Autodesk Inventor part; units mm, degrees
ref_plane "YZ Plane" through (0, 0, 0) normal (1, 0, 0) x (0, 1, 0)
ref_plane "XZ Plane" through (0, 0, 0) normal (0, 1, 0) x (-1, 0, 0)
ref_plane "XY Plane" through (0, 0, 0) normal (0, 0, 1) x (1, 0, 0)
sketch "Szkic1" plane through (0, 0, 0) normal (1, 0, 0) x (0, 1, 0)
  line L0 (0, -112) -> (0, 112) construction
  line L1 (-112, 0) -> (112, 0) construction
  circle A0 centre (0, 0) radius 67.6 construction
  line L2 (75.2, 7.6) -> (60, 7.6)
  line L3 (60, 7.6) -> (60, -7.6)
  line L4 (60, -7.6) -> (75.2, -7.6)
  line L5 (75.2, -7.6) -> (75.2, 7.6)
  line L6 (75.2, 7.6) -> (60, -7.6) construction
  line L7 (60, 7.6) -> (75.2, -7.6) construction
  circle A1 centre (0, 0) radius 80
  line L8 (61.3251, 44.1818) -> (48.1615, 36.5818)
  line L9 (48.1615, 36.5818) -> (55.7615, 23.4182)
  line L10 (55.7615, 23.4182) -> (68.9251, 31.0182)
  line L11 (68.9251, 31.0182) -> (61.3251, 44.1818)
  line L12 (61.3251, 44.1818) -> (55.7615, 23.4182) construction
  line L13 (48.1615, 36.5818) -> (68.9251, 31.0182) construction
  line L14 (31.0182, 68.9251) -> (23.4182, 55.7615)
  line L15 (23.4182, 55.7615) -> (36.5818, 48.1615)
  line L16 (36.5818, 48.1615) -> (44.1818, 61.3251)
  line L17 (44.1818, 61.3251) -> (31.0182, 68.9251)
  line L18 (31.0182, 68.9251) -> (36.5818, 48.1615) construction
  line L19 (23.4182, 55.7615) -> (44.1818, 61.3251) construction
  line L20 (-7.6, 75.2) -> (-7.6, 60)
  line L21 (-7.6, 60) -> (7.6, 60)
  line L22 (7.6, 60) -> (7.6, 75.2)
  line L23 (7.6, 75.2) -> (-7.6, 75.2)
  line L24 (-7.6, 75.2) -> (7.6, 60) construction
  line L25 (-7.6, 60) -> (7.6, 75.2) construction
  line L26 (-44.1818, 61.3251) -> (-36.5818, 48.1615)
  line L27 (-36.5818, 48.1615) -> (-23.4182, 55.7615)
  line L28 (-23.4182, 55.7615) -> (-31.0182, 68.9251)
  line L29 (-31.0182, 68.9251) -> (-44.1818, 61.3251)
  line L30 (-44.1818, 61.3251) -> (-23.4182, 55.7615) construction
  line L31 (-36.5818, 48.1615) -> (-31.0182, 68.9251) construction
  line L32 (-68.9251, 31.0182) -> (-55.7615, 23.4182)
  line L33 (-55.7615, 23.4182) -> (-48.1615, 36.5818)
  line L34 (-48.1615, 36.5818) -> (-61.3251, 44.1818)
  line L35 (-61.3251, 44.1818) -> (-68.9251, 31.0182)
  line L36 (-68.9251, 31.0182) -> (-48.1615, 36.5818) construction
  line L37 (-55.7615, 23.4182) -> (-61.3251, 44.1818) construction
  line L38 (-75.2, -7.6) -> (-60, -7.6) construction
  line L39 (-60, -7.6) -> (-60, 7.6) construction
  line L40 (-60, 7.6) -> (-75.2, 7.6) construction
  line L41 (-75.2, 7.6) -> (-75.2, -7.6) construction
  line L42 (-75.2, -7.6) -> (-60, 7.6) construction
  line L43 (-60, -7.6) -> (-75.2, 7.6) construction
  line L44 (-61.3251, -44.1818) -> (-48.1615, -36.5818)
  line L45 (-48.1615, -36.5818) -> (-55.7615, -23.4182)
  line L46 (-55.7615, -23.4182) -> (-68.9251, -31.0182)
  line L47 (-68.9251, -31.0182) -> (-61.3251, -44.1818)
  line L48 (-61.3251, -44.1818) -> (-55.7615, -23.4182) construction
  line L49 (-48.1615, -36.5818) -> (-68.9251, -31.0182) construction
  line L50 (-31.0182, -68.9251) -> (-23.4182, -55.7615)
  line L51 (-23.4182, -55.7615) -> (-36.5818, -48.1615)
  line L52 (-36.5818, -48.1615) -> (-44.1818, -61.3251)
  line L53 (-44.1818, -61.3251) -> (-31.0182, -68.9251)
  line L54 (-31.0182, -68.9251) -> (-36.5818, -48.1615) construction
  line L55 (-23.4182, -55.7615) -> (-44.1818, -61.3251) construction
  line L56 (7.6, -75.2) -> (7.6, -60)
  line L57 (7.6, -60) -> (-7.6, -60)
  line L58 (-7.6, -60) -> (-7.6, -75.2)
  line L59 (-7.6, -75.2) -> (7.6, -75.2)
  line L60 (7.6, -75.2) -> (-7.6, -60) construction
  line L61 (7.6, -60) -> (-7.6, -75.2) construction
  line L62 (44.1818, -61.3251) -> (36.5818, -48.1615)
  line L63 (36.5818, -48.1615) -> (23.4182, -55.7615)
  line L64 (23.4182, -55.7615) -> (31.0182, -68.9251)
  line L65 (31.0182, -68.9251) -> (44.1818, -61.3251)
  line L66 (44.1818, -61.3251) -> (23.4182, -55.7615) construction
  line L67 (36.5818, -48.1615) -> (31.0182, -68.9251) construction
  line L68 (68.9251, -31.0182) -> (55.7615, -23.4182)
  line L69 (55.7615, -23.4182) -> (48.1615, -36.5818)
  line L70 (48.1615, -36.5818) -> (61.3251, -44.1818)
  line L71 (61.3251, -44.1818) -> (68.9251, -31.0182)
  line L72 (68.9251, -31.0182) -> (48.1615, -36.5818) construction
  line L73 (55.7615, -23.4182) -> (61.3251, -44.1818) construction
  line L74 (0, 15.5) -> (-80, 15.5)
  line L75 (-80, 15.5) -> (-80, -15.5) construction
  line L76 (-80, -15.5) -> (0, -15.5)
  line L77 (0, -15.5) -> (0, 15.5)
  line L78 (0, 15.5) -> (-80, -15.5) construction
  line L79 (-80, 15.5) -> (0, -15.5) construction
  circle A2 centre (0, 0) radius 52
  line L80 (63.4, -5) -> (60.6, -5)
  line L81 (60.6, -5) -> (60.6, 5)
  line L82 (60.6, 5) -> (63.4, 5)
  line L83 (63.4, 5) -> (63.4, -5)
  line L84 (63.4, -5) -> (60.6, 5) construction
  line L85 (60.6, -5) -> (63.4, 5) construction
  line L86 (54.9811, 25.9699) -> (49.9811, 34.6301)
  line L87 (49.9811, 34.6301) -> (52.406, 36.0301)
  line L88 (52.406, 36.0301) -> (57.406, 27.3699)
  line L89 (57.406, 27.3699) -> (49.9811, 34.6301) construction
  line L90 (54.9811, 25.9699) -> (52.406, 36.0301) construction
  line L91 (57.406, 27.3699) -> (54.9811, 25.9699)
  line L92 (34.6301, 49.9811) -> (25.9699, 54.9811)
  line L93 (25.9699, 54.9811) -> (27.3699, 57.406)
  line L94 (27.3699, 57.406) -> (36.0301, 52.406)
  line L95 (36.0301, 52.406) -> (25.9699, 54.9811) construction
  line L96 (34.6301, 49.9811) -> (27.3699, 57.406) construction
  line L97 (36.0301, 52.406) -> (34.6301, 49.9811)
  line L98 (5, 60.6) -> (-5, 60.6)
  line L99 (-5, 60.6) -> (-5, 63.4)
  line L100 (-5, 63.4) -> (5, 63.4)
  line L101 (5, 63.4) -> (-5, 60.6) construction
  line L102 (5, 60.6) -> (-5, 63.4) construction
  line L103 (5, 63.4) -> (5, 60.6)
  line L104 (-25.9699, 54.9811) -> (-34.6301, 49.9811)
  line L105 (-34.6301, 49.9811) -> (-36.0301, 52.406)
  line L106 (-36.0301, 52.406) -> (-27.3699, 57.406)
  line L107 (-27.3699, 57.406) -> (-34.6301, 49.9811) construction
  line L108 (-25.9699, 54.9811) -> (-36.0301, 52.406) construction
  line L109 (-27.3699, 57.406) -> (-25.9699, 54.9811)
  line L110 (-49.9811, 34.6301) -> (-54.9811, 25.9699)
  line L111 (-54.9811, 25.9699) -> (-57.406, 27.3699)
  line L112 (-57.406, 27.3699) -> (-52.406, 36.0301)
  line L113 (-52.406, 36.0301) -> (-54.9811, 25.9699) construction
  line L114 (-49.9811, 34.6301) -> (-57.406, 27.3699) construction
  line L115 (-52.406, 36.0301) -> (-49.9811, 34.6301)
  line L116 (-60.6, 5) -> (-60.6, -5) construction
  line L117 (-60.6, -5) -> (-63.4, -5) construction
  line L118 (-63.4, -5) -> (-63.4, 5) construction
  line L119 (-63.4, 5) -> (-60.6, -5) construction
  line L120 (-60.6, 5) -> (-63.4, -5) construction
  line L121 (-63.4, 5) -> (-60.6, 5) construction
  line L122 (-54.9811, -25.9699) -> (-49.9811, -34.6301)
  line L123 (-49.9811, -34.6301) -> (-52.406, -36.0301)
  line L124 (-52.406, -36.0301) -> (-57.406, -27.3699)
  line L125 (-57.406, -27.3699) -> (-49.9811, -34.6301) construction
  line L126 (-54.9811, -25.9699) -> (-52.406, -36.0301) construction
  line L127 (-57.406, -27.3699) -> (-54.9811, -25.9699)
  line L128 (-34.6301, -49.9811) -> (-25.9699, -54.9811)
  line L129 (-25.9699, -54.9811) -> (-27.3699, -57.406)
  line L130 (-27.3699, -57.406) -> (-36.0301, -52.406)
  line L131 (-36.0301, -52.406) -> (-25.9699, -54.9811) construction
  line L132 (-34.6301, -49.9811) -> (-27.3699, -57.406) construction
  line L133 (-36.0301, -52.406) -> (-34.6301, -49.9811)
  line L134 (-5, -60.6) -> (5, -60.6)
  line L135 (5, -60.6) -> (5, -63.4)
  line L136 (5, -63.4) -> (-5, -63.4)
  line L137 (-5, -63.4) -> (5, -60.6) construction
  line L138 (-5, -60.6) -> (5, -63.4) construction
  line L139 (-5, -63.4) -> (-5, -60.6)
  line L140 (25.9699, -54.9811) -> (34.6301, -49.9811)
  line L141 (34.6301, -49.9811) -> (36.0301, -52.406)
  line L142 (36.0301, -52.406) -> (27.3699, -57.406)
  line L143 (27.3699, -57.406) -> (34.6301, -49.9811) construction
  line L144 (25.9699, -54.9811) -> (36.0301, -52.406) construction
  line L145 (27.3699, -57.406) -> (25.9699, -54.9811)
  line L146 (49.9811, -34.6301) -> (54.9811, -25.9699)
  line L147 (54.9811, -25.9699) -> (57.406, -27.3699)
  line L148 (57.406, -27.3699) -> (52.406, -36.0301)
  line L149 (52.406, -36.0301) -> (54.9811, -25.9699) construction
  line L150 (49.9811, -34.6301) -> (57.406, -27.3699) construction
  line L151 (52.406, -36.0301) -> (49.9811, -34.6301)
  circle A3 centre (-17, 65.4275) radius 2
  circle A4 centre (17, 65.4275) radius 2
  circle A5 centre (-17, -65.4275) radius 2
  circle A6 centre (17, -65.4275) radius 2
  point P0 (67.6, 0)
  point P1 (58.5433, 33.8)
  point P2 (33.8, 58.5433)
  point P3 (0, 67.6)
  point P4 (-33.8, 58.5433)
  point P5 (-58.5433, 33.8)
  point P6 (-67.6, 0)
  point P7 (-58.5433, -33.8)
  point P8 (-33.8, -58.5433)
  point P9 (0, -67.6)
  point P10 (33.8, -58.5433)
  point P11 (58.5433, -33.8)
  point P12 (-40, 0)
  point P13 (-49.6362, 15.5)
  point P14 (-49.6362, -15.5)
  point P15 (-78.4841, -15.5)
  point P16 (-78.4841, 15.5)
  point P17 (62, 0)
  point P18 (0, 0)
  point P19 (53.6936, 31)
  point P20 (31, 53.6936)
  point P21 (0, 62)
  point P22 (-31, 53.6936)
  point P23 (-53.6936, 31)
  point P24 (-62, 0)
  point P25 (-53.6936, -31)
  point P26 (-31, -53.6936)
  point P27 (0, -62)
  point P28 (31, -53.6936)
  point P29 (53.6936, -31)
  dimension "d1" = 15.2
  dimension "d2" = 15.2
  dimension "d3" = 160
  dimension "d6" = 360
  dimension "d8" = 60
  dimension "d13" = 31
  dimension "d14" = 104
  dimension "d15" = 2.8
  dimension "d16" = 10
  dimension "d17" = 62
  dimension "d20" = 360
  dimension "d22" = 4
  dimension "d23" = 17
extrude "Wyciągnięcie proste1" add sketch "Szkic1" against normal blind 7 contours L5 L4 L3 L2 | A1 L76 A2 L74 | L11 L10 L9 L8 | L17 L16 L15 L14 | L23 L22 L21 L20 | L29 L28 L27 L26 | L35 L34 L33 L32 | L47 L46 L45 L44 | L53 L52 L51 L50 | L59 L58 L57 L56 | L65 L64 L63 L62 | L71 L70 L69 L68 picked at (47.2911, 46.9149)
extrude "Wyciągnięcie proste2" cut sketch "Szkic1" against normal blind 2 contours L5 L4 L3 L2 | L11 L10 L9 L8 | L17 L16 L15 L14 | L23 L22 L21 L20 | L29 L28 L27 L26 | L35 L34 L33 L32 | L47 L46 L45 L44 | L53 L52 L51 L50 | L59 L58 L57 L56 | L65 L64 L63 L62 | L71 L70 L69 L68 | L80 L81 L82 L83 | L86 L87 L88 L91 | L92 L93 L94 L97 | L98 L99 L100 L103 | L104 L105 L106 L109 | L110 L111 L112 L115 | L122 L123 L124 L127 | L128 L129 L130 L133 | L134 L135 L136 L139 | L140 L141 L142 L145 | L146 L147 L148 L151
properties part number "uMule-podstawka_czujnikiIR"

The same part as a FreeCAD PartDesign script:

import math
import FreeCAD as App
import Part
import Sketcher
from FreeCAD import Vector
Q = App.Units.Quantity


def add_polygon(sketch, points):
    """Adds a closed chain of lines whose ends are joined by coincident constraints."""
    first, n = sketch.GeometryCount, len(points)
    for a, b in zip(points, points[1:] + points[:1]):
        sketch.addGeometry(Part.LineSegment(App.Vector(*a, 0), App.Vector(*b, 0)), False)
    for i in range(n):
        sketch.addConstraint(Sketcher.Constraint("Coincident", first + i, 2, first + (i + 1) % n, 1))

doc = App.newDocument("Part")
body = doc.addObject("PartDesign::Body", "Body")

# Sketch on YZ plane
sketch1 = body.newObject("Sketcher::SketchObject", "Sketch")
sketch1.AttachmentSupport = (doc.getObject("YZ_Plane"), [""])
sketch1.MapMode = "FlatFace"
sketch1.addGeometry(Part.ArcOfCircle(Part.Circle(Vector(0, 0, 0), Vector(0, 0, 1), 80), math.radians(-169), math.radians(169)), False)  # 0
sketch1.addGeometry(Part.LineSegment(Vector(-78.5, 15.5, 0), Vector(-49.6, 15.5, 0)), False)  # 1
sketch1.addGeometry(Part.ArcOfCircle(Part.Circle(Vector(0, 0, 0), Vector(0, 0, 1), 52), math.radians(-163), math.radians(163)), False)  # 2
sketch1.addGeometry(Part.LineSegment(Vector(-49.6, -15.5, 0), Vector(-78.5, -15.5, 0)), False)  # 3
add_polygon(sketch1, [(63.4, 5), (63.4, -5), (60.6, -5), (60.6, 5)])  # lines 4-7
sketch1.addGeometry(Part.Circle(Vector(-17, -65.4, 0), Vector(0, 0, 1), 2), False)  # 8
sketch1.addGeometry(Part.Circle(Vector(17, -65.4, 0), Vector(0, 0, 1), 2), False)  # 9
sketch1.addGeometry(Part.Circle(Vector(-17, 65.4, 0), Vector(0, 0, 1), 2), False)  # 10
sketch1.addGeometry(Part.Circle(Vector(17, 65.4, 0), Vector(0, 0, 1), 2), False)  # 11
add_polygon(sketch1, [(-36, -52.4), (-34.6, -50), (-26, -55), (-27.4, -57.4)])  # lines 12-15
add_polygon(sketch1, [(-57.4, -27.4), (-55, -26), (-50, -34.6), (-52.4, -36)])  # lines 16-19
add_polygon(sketch1, [(-5, -63.4), (-5, -60.6), (5, -60.6), (5, -63.4)])  # lines 20-23
add_polygon(sketch1, [(27.4, -57.4), (26, -55), (34.6, -50), (36, -52.4)])  # lines 24-27
add_polygon(sketch1, [(52.4, -36), (50, -34.6), (55, -26), (57.4, -27.4)])  # lines 28-31
add_polygon(sketch1, [(-52.4, 36), (-50, 34.6), (-55, 26), (-57.4, 27.4)])  # lines 32-35
add_polygon(sketch1, [(-27.4, 57.4), (-26, 55), (-34.6, 50), (-36, 52.4)])  # lines 36-39
add_polygon(sketch1, [(-5, 63.4), (5, 63.4), (5, 60.6), (-5, 60.6)])  # lines 40-43
add_polygon(sketch1, [(57.4, 27.4), (55, 26), (50, 34.6), (52.4, 36)])  # lines 44-47
add_polygon(sketch1, [(36, 52.4), (34.6, 50), (26, 55), (27.4, 57.4)])  # lines 48-51
sketch1.addConstraint([
    Sketcher.Constraint("Coincident", 0, 2, 1, 1),
    Sketcher.Constraint("Coincident", 1, 2, 2, 2),
    Sketcher.Constraint("Coincident", 2, 1, 3, 1),
    Sketcher.Constraint("Coincident", 3, 2, 0, 1),
    Sketcher.Constraint("Horizontal", 1),
    Sketcher.Constraint("Horizontal", 3),
    Sketcher.Constraint("Vertical", 4),
    Sketcher.Constraint("Horizontal", 5),
    Sketcher.Constraint("Vertical", 6),
    Sketcher.Constraint("Horizontal", 7),
    Sketcher.Constraint("Vertical", 20),
    Sketcher.Constraint("Horizontal", 21),
    Sketcher.Constraint("Vertical", 22),
    Sketcher.Constraint("Horizontal", 23),
    Sketcher.Constraint("Horizontal", 40),
    Sketcher.Constraint("Vertical", 41),
    Sketcher.Constraint("Horizontal", 42),
    Sketcher.Constraint("Vertical", 43),
    Sketcher.Constraint("Coincident", 0, 3, -1, 1),
    Sketcher.Constraint("Coincident", 2, 3, -1, 1),
    Sketcher.Constraint("Equal", 8, 9),
    Sketcher.Constraint("Equal", 9, 10),
    Sketcher.Constraint("Equal", 10, 11),
    Sketcher.Constraint("Symmetric", 9, 3, 10, 3, -1, 1),
    Sketcher.Constraint("Symmetric", 8, 3, 11, 3, -1, 1),
    Sketcher.Constraint("Symmetric", 28, 2, 32, 2, -1, 1),
    Sketcher.Constraint("Symmetric", 29, 2, 33, 2, -1, 1),
    Sketcher.Constraint("Symmetric", 30, 2, 34, 2, -1, 1),
    Sketcher.Constraint("Symmetric", 31, 2, 35, 2, -1, 1),
    Sketcher.Constraint("Symmetric", 24, 2, 36, 2, -1, 1),
    Sketcher.Constraint("Symmetric", 25, 2, 37, 2, -1, 1),
    Sketcher.Constraint("Symmetric", 26, 2, 38, 2, -1, 1),
    Sketcher.Constraint("Symmetric", 27, 2, 39, 2, -1, 1),
    Sketcher.Constraint("Symmetric", 23, 2, 40, 2, -1, 1),
    Sketcher.Constraint("Symmetric", 21, 2, 42, 2, -1, 1),
    Sketcher.Constraint("Symmetric", 16, 2, 44, 2, -1, 1),
    Sketcher.Constraint("Symmetric", 17, 2, 45, 2, -1, 1),
    Sketcher.Constraint("Symmetric", 18, 2, 46, 2, -1, 1),
    Sketcher.Constraint("Symmetric", 19, 2, 47, 2, -1, 1),
    Sketcher.Constraint("Symmetric", 12, 2, 48, 2, -1, 1),
    Sketcher.Constraint("Symmetric", 13, 2, 49, 2, -1, 1),
    Sketcher.Constraint("Symmetric", 14, 2, 50, 2, -1, 1),
    Sketcher.Constraint("Symmetric", 15, 2, 51, 2, -1, 1),
    Sketcher.Constraint("Symmetric", 8, 3, 9, 3, -2),
    Sketcher.Constraint("Symmetric", 13, 2, 24, 2, -2),
    Sketcher.Constraint("Symmetric", 12, 2, 25, 2, -2),
    Sketcher.Constraint("Symmetric", 15, 2, 26, 2, -2),
    Sketcher.Constraint("Symmetric", 14, 2, 27, 2, -2),
    Sketcher.Constraint("Symmetric", 17, 2, 28, 2, -2),
    Sketcher.Constraint("Symmetric", 16, 2, 29, 2, -2),
    Sketcher.Constraint("Symmetric", 19, 2, 30, 2, -2),
    Sketcher.Constraint("Symmetric", 18, 2, 31, 2, -2),
    Sketcher.Constraint("Perpendicular", 12, 13),
    Sketcher.Constraint("Perpendicular", 13, 14),
    Sketcher.Constraint("Perpendicular", 14, 15),
    Sketcher.Constraint("Perpendicular", 16, 17),
    Sketcher.Constraint("Perpendicular", 17, 18),
    Sketcher.Constraint("Perpendicular", 18, 19),
    Sketcher.Constraint("Parallel", 19, 24),
    Sketcher.Constraint("Vertical", 1, 2, 2, 1),
    Sketcher.Constraint("Vertical", 22, 2, 40, 2),
    Sketcher.Constraint("Equal", 42, 4),
    Sketcher.Constraint("Equal", 7, 20),
    Sketcher.Constraint("Equal", 14, 16),
    Sketcher.Constraint("Equal", 15, 17),
    Sketcher.Constraint("Diameter", 8, Q("4 mm")),
    Sketcher.Constraint("Radius", 0, Q("80 mm")),
    Sketcher.Constraint("Radius", 2, Q("52 mm")),
    Sketcher.Constraint("DistanceX", 21, 1, 21, 2, Q("10 mm")),
    Sketcher.Constraint("Angle", 12, Q("60.0003 deg")),
    Sketcher.Constraint("Distance", 13, Q("10 mm")),
    Sketcher.Constraint("DistanceX", 5, 2, 5, 1, Q("2.8 mm")),
    Sketcher.Constraint("DistanceX", 8, 3, -1, 1, Q("17 mm")),
    Sketcher.Constraint("DistanceY", 2, 1, 1, 2, Q("31 mm")),
    Sketcher.Constraint("Distance", 12, Q("2.8 mm")),
    Sketcher.Constraint("DistanceY", 4, 2, -1, 1, Q("5 mm")),
    Sketcher.Constraint("DistanceX", -1, 1, 4, 2, Q("63.4 mm")),
    Sketcher.Constraint("DistanceY", 20, 2, -1, 1, Q("60.6 mm")),
    Sketcher.Constraint("DistanceX", 12, 2, -1, 1, Q("34.63 mm")),
    Sketcher.Constraint("DistanceY", 16, 2, -1, 1, Q("25.97 mm")),
    Sketcher.Constraint("DistanceY", 12, 2, -1, 1, Q("49.981 mm")),
    Sketcher.Constraint("DistanceX", 16, 2, -1, 1, Q("54.981 mm")),
    Sketcher.Constraint("DistanceY", 8, 3, 10, 3, Q("130.855 mm")),
])
pad1 = body.newObject("PartDesign::Pad", "Pad")
pad1.Profile = sketch1
pad1.Length = 7
pad1.Reversed = True

# Sketch on YZ plane
sketch2 = body.newObject("Sketcher::SketchObject", "Sketch001")
sketch2.AttachmentSupport = (doc.getObject("YZ_Plane"), [""])
sketch2.MapMode = "FlatFace"
add_polygon(sketch2, [(75, -8), (75, 8), (60, 8), (60, -8)])  # lines 0-3
add_polygon(sketch2, [(69, 31), (61, 44), (48, 37), (56, 23)])  # lines 4-7
add_polygon(sketch2, [(44, 61), (31, 69), (23, 56), (37, 48)])  # lines 8-11
add_polygon(sketch2, [(8, 75), (-8, 75), (-8, 60), (8, 60)])  # lines 12-15
add_polygon(sketch2, [(-31, 69), (-44, 61), (-37, 48), (-23, 56)])  # lines 16-19
add_polygon(sketch2, [(-61, 44), (-69, 31), (-56, 23), (-48, 37)])  # lines 20-23
add_polygon(sketch2, [(-69, -31), (-61, -44), (-48, -37), (-56, -23)])  # lines 24-27
add_polygon(sketch2, [(-44, -61), (-31, -69), (-23, -56), (-37, -48)])  # lines 28-31
add_polygon(sketch2, [(-8, -75), (8, -75), (8, -60), (-8, -60)])  # lines 32-35
add_polygon(sketch2, [(31, -69), (44, -61), (37, -48), (23, -56)])  # lines 36-39
add_polygon(sketch2, [(61, -44), (69, -31), (56, -23), (48, -37)])  # lines 40-43
sketch2.addConstraint([
    Sketcher.Constraint("Vertical", 0),
    Sketcher.Constraint("Horizontal", 1),
    Sketcher.Constraint("Vertical", 2),
    Sketcher.Constraint("Horizontal", 3),
    Sketcher.Constraint("Horizontal", 12),
    Sketcher.Constraint("Vertical", 13),
    Sketcher.Constraint("Horizontal", 14),
    Sketcher.Constraint("Vertical", 15),
    Sketcher.Constraint("Horizontal", 32),
    Sketcher.Constraint("Vertical", 33),
    Sketcher.Constraint("Horizontal", 34),
    Sketcher.Constraint("Vertical", 35),
    Sketcher.Constraint("Symmetric", 4, 2, 24, 2, -1, 1),
    Sketcher.Constraint("Symmetric", 5, 2, 25, 2, -1, 1),
    Sketcher.Constraint("Symmetric", 6, 2, 26, 2, -1, 1),
    Sketcher.Constraint("Symmetric", 7, 2, 27, 2, -1, 1),
    Sketcher.Constraint("Symmetric", 8, 2, 28, 2, -1, 1),
    Sketcher.Constraint("Symmetric", 9, 2, 29, 2, -1, 1),
    Sketcher.Constraint("Symmetric", 10, 2, 30, 2, -1, 1),
    Sketcher.Constraint("Symmetric", 11, 2, 31, 2, -1, 1),
    Sketcher.Constraint("Symmetric", 12, 2, 32, 2, -1, 1),
    Sketcher.Constraint("Symmetric", 14, 2, 34, 2, -1, 1),
    Sketcher.Constraint("Symmetric", 16, 2, 36, 2, -1, 1),
    Sketcher.Constraint("Symmetric", 17, 2, 37, 2, -1, 1),
    Sketcher.Constraint("Symmetric", 18, 2, 38, 2, -1, 1),
    Sketcher.Constraint("Symmetric", 19, 2, 39, 2, -1, 1),
    Sketcher.Constraint("Symmetric", 20, 2, 40, 2, -1, 1),
    Sketcher.Constraint("Symmetric", 21, 2, 41, 2, -1, 1),
    Sketcher.Constraint("Symmetric", 22, 2, 42, 2, -1, 1),
    Sketcher.Constraint("Symmetric", 23, 2, 43, 2, -1, 1),
    Sketcher.Constraint("Symmetric", 11, 2, 16, 2, -2),
    Sketcher.Constraint("Symmetric", 10, 2, 17, 2, -2),
    Sketcher.Constraint("Symmetric", 9, 2, 18, 2, -2),
    Sketcher.Constraint("Symmetric", 8, 2, 19, 2, -2),
    Sketcher.Constraint("Symmetric", 7, 2, 20, 2, -2),
    Sketcher.Constraint("Symmetric", 6, 2, 21, 2, -2),
    Sketcher.Constraint("Symmetric", 5, 2, 22, 2, -2),
    Sketcher.Constraint("Symmetric", 4, 2, 23, 2, -2),
    Sketcher.Constraint("Perpendicular", 4, 5),
    Sketcher.Constraint("Perpendicular", 5, 6),
    Sketcher.Constraint("Perpendicular", 6, 7),
    Sketcher.Constraint("Perpendicular", 8, 9),
    Sketcher.Constraint("Perpendicular", 9, 10),
    Sketcher.Constraint("Perpendicular", 10, 11),
    Sketcher.Constraint("Parallel", 7, 16),
    Sketcher.Constraint("Vertical", 15, 2, 32, 2),
    Sketcher.Constraint("Equal", 3, 12),
    Sketcher.Constraint("Equal", 34, 0),
    Sketcher.Constraint("Equal", 2, 13),
    Sketcher.Constraint("Equal", 4, 5),
    Sketcher.Constraint("Equal", 7, 8),
    Sketcher.Constraint("Equal", 8, 9),
    Sketcher.Constraint("Angle", 6, Q("-60 deg")),
    Sketcher.Constraint("DistanceX", 1, 2, 1, 1, Q("15.2 mm")),
    Sketcher.Constraint("DistanceX", -1, 1, 1, 2, Q("60 mm")),
    Sketcher.Constraint("DistanceY", -1, 1, 13, 2, Q("60 mm")),
    Sketcher.Constraint("DistanceY", 25, 2, 21, 2, Q("60 mm")),
    Sketcher.Constraint("Distance", 4, Q("15.2 mm")),
    Sketcher.Constraint("DistanceY", -1, 1, 0, 2, Q("7.6 mm")),
    Sketcher.Constraint("DistanceX", 16, 2, 9, 2, Q("67.6 mm")),
    Sketcher.Constraint("DistanceX", -1, 1, 4, 2, Q("61.325 mm")),
    Sketcher.Constraint("DistanceY", -1, 1, 8, 2, Q("68.925 mm")),
])
pocket1 = body.newObject("PartDesign::Pocket", "Pocket")
pocket1.Profile = sketch2
pocket1.Length = 2

doc.recompute()
